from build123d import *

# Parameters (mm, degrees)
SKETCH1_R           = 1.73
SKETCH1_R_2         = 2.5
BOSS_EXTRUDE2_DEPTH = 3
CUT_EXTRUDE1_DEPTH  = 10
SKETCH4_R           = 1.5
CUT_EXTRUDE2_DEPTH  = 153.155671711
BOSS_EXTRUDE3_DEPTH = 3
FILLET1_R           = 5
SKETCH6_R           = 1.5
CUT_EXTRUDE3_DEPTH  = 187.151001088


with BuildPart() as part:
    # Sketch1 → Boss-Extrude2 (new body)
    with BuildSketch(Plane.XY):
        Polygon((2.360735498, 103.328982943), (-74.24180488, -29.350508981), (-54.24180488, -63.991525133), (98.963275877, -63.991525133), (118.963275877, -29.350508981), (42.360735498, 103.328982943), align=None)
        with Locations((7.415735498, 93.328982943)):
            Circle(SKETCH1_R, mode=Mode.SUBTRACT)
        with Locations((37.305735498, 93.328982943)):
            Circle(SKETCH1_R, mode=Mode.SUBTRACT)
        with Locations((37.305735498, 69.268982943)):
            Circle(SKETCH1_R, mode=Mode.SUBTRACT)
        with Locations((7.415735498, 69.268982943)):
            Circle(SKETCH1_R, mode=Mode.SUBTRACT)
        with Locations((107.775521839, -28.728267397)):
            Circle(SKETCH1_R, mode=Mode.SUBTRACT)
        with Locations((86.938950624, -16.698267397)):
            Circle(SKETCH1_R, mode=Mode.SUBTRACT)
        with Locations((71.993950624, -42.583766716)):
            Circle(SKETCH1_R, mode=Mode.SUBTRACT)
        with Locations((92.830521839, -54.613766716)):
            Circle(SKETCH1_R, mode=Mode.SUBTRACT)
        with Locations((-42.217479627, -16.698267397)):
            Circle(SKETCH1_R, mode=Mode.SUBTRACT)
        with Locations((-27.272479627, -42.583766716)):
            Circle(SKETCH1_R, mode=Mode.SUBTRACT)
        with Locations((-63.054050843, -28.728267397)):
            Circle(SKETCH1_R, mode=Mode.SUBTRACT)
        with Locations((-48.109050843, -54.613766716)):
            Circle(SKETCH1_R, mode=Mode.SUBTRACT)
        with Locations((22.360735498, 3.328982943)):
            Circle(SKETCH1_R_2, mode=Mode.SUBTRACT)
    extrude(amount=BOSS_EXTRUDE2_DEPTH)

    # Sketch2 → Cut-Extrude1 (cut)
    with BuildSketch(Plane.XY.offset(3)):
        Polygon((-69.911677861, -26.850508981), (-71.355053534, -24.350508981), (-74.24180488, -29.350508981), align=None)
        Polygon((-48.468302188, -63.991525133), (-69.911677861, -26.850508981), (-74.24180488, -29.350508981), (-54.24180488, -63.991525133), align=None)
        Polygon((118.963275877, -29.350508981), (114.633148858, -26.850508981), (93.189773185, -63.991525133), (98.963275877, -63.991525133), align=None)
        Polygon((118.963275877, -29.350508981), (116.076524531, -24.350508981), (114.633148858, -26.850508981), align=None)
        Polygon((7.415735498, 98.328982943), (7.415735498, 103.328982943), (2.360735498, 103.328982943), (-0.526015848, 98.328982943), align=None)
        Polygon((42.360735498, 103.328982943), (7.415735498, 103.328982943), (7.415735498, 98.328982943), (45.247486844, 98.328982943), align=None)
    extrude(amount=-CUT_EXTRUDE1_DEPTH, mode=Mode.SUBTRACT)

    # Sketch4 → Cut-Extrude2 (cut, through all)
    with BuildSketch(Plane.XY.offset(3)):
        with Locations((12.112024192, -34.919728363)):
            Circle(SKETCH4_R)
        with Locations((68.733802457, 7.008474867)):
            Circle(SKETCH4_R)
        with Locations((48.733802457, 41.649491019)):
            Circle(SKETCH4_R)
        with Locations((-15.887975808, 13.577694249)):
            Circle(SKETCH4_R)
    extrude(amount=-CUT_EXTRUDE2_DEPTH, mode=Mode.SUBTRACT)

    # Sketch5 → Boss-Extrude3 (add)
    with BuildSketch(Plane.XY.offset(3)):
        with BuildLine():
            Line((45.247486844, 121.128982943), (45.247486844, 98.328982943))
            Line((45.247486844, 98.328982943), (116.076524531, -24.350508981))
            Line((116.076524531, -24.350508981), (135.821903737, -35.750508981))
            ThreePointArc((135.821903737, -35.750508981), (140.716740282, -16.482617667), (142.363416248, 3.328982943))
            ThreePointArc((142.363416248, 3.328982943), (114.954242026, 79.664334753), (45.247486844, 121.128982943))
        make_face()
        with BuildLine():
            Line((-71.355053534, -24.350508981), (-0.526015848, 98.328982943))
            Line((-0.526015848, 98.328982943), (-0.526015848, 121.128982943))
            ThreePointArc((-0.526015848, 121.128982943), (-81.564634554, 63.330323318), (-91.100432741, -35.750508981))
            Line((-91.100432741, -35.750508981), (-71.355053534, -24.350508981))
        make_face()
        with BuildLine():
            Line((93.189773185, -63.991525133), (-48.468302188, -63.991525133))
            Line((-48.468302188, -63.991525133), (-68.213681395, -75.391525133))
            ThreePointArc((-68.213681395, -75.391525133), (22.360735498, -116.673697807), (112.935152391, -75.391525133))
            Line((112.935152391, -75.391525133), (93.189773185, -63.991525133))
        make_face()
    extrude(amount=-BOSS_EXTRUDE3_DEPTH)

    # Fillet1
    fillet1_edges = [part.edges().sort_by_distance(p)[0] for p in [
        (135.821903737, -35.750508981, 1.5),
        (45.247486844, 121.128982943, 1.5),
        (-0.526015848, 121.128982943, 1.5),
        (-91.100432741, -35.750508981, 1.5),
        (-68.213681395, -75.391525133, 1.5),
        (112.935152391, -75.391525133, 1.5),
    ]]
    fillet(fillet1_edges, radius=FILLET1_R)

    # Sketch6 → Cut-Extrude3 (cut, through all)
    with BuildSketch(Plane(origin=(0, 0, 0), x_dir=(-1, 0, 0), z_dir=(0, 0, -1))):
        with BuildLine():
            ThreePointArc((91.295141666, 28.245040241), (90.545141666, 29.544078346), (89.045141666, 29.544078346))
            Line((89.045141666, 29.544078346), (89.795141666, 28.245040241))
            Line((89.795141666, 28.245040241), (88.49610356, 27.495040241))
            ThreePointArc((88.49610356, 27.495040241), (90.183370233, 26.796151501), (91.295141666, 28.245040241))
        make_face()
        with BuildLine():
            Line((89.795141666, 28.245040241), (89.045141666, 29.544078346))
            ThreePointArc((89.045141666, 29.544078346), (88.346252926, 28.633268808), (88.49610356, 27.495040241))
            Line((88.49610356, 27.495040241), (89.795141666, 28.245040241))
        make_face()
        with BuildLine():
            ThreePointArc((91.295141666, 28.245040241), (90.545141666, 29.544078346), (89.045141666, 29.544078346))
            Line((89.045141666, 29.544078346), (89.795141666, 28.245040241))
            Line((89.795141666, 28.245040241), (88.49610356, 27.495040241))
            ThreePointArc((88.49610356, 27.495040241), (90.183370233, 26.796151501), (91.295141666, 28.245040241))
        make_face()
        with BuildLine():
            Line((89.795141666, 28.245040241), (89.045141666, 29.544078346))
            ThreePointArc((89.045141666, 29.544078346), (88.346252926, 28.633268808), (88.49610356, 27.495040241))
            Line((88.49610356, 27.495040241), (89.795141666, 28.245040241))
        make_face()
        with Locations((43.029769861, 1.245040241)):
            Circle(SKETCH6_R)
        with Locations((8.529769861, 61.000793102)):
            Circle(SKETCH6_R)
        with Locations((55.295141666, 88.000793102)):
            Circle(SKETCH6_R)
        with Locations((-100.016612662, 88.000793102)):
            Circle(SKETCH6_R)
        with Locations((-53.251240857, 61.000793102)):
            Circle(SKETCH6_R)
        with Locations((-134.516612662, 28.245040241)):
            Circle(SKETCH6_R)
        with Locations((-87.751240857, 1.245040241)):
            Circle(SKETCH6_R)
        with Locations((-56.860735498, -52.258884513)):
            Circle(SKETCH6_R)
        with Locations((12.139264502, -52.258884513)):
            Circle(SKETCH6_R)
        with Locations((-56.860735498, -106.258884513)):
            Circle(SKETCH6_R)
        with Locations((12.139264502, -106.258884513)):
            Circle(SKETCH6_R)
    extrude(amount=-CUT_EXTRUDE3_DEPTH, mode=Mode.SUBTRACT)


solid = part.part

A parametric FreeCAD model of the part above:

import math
import FreeCAD as App
import Part
import Sketcher
Q = App.Units.Quantity


def edges_at(feature, points):
    """Names of the edges that pass closest to the given points."""
    edges = feature.Shape.Edges
    near = lambda p: min(range(len(edges)), key=lambda i: edges[i].distToShape(Part.Vertex(*p))[0])
    return sorted({f"Edge{near(p) + 1}" for p in points})


def add_polygon(sketch, points):
    """Adds a closed chain of lines whose ends are joined by coincident constraints."""
    first, n = sketch.GeometryCount, len(points)
    for a, b in zip(points, points[1:] + points[:1]):
        sketch.addGeometry(Part.LineSegment(App.Vector(*a, 0), App.Vector(*b, 0)), False)
    for i in range(n):
        sketch.addConstraint(Sketcher.Constraint("Coincident", first + i, 2, first + (i + 1) % n, 1))

doc = App.newDocument("Part")
body = doc.addObject("PartDesign::Body", "Body")

# Sketch on XY plane
sketch1 = body.newObject("Sketcher::SketchObject", "Sketch")
sketch1.AttachmentSupport = (doc.getObject("XY_Plane"), [""])
sketch1.MapMode = "FlatFace"
add_polygon(sketch1, [(2.4, 103.3), (-74.2, -29.4), (-54.2, -64), (99, -64), (119, -29.4), (42.4, 103.3)])  # lines 0-5
sketch1.addGeometry(Part.Circle(App.Vector(-48.1, -54.6, 0), App.Vector(0, 0, 1), 1.7), False)  # 6
sketch1.addGeometry(Part.Circle(App.Vector(-27.3, -42.6, 0), App.Vector(0, 0, 1), 1.7), False)  # 7
sketch1.addGeometry(Part.Circle(App.Vector(-63.1, -28.7, 0), App.Vector(0, 0, 1), 1.7), False)  # 8
sketch1.addGeometry(Part.Circle(App.Vector(-42.2, -16.7, 0), App.Vector(0, 0, 1), 1.7), False)  # 9
sketch1.addGeometry(Part.Circle(App.Vector(22.4, 3.3, 0), App.Vector(0, 0, 1), 2.5), False)  # 10
sketch1.addGeometry(Part.Circle(App.Vector(72, -42.6, 0), App.Vector(0, 0, 1), 1.7), False)  # 11
sketch1.addGeometry(Part.Circle(App.Vector(92.8, -54.6, 0), App.Vector(0, 0, 1), 1.7), False)  # 12
sketch1.addGeometry(Part.Circle(App.Vector(107.8, -28.7, 0), App.Vector(0, 0, 1), 1.7), False)  # 13
sketch1.addGeometry(Part.Circle(App.Vector(86.9, -16.7, 0), App.Vector(0, 0, 1), 1.7), False)  # 14
sketch1.addGeometry(Part.Circle(App.Vector(7.4, 69.3, 0), App.Vector(0, 0, 1), 1.7), False)  # 15
sketch1.addGeometry(Part.Circle(App.Vector(7.4, 93.3, 0), App.Vector(0, 0, 1), 1.7), False)  # 16
sketch1.addGeometry(Part.Circle(App.Vector(37.3, 69.3, 0), App.Vector(0, 0, 1), 1.7), False)  # 17
sketch1.addGeometry(Part.Circle(App.Vector(37.3, 93.3, 0), App.Vector(0, 0, 1), 1.7), False)  # 18
sketch1.addConstraint([
    Sketcher.Constraint("Horizontal", 2),
    Sketcher.Constraint("Horizontal", 5),
    Sketcher.Constraint("Equal", 6, 7),
    Sketcher.Constraint("Equal", 7, 8),
    Sketcher.Constraint("Equal", 8, 9),
    Sketcher.Constraint("Equal", 9, 11),
    Sketcher.Constraint("Equal", 11, 12),
    Sketcher.Constraint("Equal", 12, 13),
    Sketcher.Constraint("Equal", 13, 14),
    Sketcher.Constraint("Equal", 14, 15),
    Sketcher.Constraint("Equal", 15, 16),
    Sketcher.Constraint("Equal", 16, 17),
    Sketcher.Constraint("Equal", 17, 18),
    Sketcher.Constraint("Parallel", 0, 3),
    Sketcher.Constraint("Parallel", 1, 4),
    Sketcher.Constraint("Horizontal", 7, 3, 11, 3),
    Sketcher.Constraint("Horizontal", 6, 3, 12, 3),
    Sketcher.Constraint("Horizontal", 8, 3, 13, 3),
    Sketcher.Constraint("Horizontal", 9, 3, 14, 3),
    Sketcher.Constraint("Horizontal", 15, 3, 17, 3),
    Sketcher.Constraint("Horizontal", 16, 3, 18, 3),
    Sketcher.Constraint("Horizontal", 0, 2, 3, 2),
    Sketcher.Constraint("Vertical", 15, 3, 16, 3),
    Sketcher.Constraint("Vertical", 17, 3, 18, 3),
    Sketcher.Constraint("Equal", 1, 3),
    Sketcher.Constraint("Diameter", 10, 5.0),
    Sketcher.Constraint("Diameter", 6, 3.46),
    Sketcher.Constraint("DistanceX", 5, 2, 5, 1, 40.0),
    Sketcher.Constraint("Angle", 0, Q("-120 deg")),
    Sketcher.Constraint("Distance", 1, 40.0),
    Sketcher.Constraint("DistanceY", 10, 3, 16, 3, 90.0),
    Sketcher.Constraint("DistanceY", 18, 3, 4, 2, 10.0),
    Sketcher.Constraint("DistanceX", 10, 3, 4, 2, 20.0),
    Sketcher.Constraint("DistanceY", 6, 3, 7, 3, 12.03),
    Sketcher.Constraint("DistanceY", 8, 3, 9, 3, 12.03),
    Sketcher.Constraint("DistanceY", 10, 3, 15, 3, 65.94),
    Sketcher.Constraint("DistanceX", 15, 3, 17, 3, 29.89),
    Sketcher.Constraint("DistanceX", 8, 3, 6, 3, 14.945),
    Sketcher.Constraint("DistanceX", 9, 3, 7, 3, 14.945),
    Sketcher.Constraint("DistanceX", 6, 3, 11, 3, 120.103001),
    Sketcher.Constraint("DistanceX", 7, 3, 12, 3, 120.103001),
    Sketcher.Constraint("DistanceX", 12, 3, 13, 3, 14.945),
    Sketcher.Constraint("DistanceX", 11, 3, 14, 3, 14.945),
    Sketcher.Constraint("DistanceX", 15, 3, 10, 3, 14.945),
    Sketcher.Constraint("DistanceX", 2, 1, 2, 2, 153.205081),
    Sketcher.Constraint("DistanceY", 6, 3, 8, 3, 25.885499),
    Sketcher.Constraint("DistanceX", 6, 3, -1, 1, 48.109051),
    Sketcher.Constraint("DistanceX", 7, 3, -1, 1, 27.27248),
    Sketcher.Constraint("DistanceY", 0, 2, -1, 1, 29.350509),
    Sketcher.Constraint("DistanceY", 7, 3, 10, 3, 45.91275),
    Sketcher.Constraint("DistanceX", -1, 1, 10, 3, 22.360735),
])
pad1 = body.newObject("PartDesign::Pad", "Pad")
pad1.Profile = sketch1
pad1.Length = 3

# Sketch on XY plane
sketch2 = body.newObject("Sketcher::SketchObject", "Sketch001")
sketch2.AttachmentSupport = (doc.getObject("XY_Plane"), [""])
sketch2.MapMode = "FlatFace"
sketch2.AttachmentOffset = App.Placement(App.Vector(0, 0, 3), App.Rotation())
add_polygon(sketch2, [(-69.9, -26.9), (-71.4, -24.4), (-74.2, -29.4), (-54.2, -64), (-48.5, -64)])  # lines 0-4
add_polygon(sketch2, [(114.6, -26.9), (93.2, -64), (99, -64), (119, -29.4), (116.1, -24.4)])  # lines 5-9
add_polygon(sketch2, [(2.4, 103.3), (-0.5, 98.3), (45.2, 98.3), (42.4, 103.3)])  # lines 10-13
sketch2.addConstraint([
    Sketcher.Constraint("Horizontal", 3),
    Sketcher.Constraint("Horizontal", 6),
    Sketcher.Constraint("Horizontal", 11),
    Sketcher.Constraint("Horizontal", 13),
    Sketcher.Constraint("Parallel", 0, 2),
    Sketcher.Constraint("Parallel", 2, 4),
    Sketcher.Constraint("Parallel", 1, 5),
    Sketcher.Constraint("Parallel", 5, 7),
    Sketcher.Constraint("Parallel", 4, 8),
    Sketcher.Constraint("Parallel", 7, 9),
    Sketcher.Constraint("Parallel", 9, 10),
    Sketcher.Constraint("Parallel", 8, 12),
    Sketcher.Constraint("Horizontal", 3, 2, 5, 2),
    Sketcher.Constraint("Horizontal", 1, 2, 7, 2),
    Sketcher.Constraint("Horizontal", 0, 2, 8, 2),
    Sketcher.Constraint("Horizontal", 4, 2, 9, 2),
    Sketcher.Constraint("Equal", 4, 5),
    Sketcher.Constraint("Equal", 8, 10),
    Sketcher.Constraint("DistanceX", 13, 2, 13, 1, 40.0),
    Sketcher.Constraint("Angle", 0, Q("120 deg")),
    Sketcher.Constraint("Distance", 2, 40.0),
    Sketcher.Constraint("DistanceY", 1, 2, 0, 2, 5.0),
    Sketcher.Constraint("DistanceY", 4, 2, 0, 2, 2.5),
    Sketcher.Constraint("DistanceY", 0, 2, -1, 1, 24.350509),
    Sketcher.Constraint("DistanceX", -1, 1, 9, 2, 114.633149),
    Sketcher.Constraint("DistanceX", 2, 2, 5, 2, 147.431578),
    Sketcher.Constraint("DistanceY", 0, 2, 10, 2, 122.679492),
    Sketcher.Constraint("DistanceX", 1, 2, 10, 2, 73.715789),
])
pocket1 = body.newObject("PartDesign::Pocket", "Pocket")
pocket1.Profile = sketch2
pocket1.Length = 10

# Sketch on XY plane
sketch3 = body.newObject("Sketcher::SketchObject", "Sketch002")
sketch3.AttachmentSupport = (doc.getObject("XY_Plane"), [""])
sketch3.MapMode = "FlatFace"
sketch3.AttachmentOffset = App.Placement(App.Vector(0, 0, 3), App.Rotation())
sketch3.addGeometry([
    Part.Circle(App.Vector(12.1, -34.9, 0), App.Vector(0, 0, 1), 1.5),
    Part.Circle(App.Vector(68.7, 7, 0), App.Vector(0, 0, 1), 1.5),
    Part.Circle(App.Vector(48.7, 41.6, 0), App.Vector(0, 0, 1), 1.5),
    Part.Circle(App.Vector(-15.9, 13.6, 0), App.Vector(0, 0, 1), 1.5),
], False)
sketch3.addConstraint([
    Sketcher.Constraint("Equal", 0, 1),
    Sketcher.Constraint("Equal", 1, 2),
    Sketcher.Constraint("Equal", 2, 3),
    Sketcher.Constraint("Diameter", 0, 3.0),
    Sketcher.Constraint("DistanceX", 2, 3, 1, 3, 20.0),
    Sketcher.Constraint("DistanceX", 3, 3, 0, 3, 28.0),
    Sketcher.Constraint("DistanceY", 0, 3, -1, 1, 34.919728),
    Sketcher.Constraint("DistanceY", -1, 1, 2, 3, 41.649491),
    Sketcher.Constraint("DistanceX", 0, 3, 1, 3, 56.621778),
    Sketcher.Constraint("DistanceY", 1, 3, 3, 3, 6.569219),
    Sketcher.Constraint("DistanceX", -1, 1, 0, 3, 12.112024),
    Sketcher.Constraint("DistanceY", -1, 1, 1, 3, 7.008475),
])
pocket2 = body.newObject("PartDesign::Pocket", "Pocket001")
pocket2.Profile = sketch3
pocket2.Type = "ThroughAll"

# Sketch on XY plane
sketch4 = body.newObject("Sketcher::SketchObject", "Sketch003")
sketch4.AttachmentSupport = (doc.getObject("XY_Plane"), [""])
sketch4.MapMode = "FlatFace"
sketch4.AttachmentOffset = App.Placement(App.Vector(0, 0, 3), App.Rotation())
sketch4.addGeometry([
    Part.LineSegment(App.Vector(45, 121, 0), App.Vector(45, 98, 0)),  # 0
    Part.LineSegment(App.Vector(45, 98, 0), App.Vector(116, -24, 0)),  # 1
    Part.LineSegment(App.Vector(116, -24, 0), App.Vector(136, -36, 0)),  # 2
    Part.ArcOfCircle(Part.Circle(App.Vector(22, 3, 0), App.Vector(0, 0, 1), 120), math.radians(-19.01), math.radians(0)),  # 3
    Part.ArcOfCircle(Part.Circle(App.Vector(22, 3, 0), App.Vector(0, 0, 1), 120), math.radians(0), math.radians(79)),  # 4
    Part.LineSegment(App.Vector(-71, -24, 0), App.Vector(-1, 98, 0)),  # 5
    Part.LineSegment(App.Vector(-1, 98, 0), App.Vector(-1, 121, 0)),  # 6
    Part.ArcOfCircle(Part.Circle(App.Vector(22, 3, 0), App.Vector(0, 0, 1), 120), math.radians(101), math.radians(199)),  # 7
    Part.LineSegment(App.Vector(-91, -36, 0), App.Vector(-71, -24, 0)),  # 8
    Part.LineSegment(App.Vector(93, -64, 0), App.Vector(-48, -64, 0)),  # 9
    Part.LineSegment(App.Vector(-48, -64, 0), App.Vector(-68, -75, 0)),  # 10
    Part.ArcOfCircle(Part.Circle(App.Vector(22, 3, 0), App.Vector(0, 0, 1), 120), math.radians(-139), math.radians(-41)),  # 11
    Part.LineSegment(App.Vector(113, -75, 0), App.Vector(93, -64, 0)),  # 12
], False)
sketch4.addConstraint([
    Sketcher.Constraint("Coincident", 0, 2, 1, 1),
    Sketcher.Constraint("Coincident", 1, 2, 2, 1),
    Sketcher.Constraint("Coincident", 2, 2, 3, 1),
    Sketcher.Constraint("Tangent", 3, 2, 4, 1),
    Sketcher.Constraint("Coincident", 4, 2, 0, 1),
    Sketcher.Constraint("Coincident", 5, 2, 6, 1),
    Sketcher.Constraint("Coincident", 6, 2, 7, 1),
    Sketcher.Constraint("Coincident", 7, 2, 8, 1),
    Sketcher.Constraint("Coincident", 8, 2, 5, 1),
    Sketcher.Constraint("Coincident", 9, 2, 10, 1),
    Sketcher.Constraint("Coincident", 10, 2, 11, 1),
    Sketcher.Constraint("Coincident", 11, 2, 12, 1),
    Sketcher.Constraint("Coincident", 12, 2, 9, 1),
    Sketcher.Constraint("Vertical", 0),
    Sketcher.Constraint("Vertical", 6),
    Sketcher.Constraint("Horizontal", 9),
    Sketcher.Constraint("Coincident", 7, 3, 3, 3),
    Sketcher.Constraint("Coincident", 11, 3, 3, 3),
    Sketcher.Constraint("Equal", 3, 4),
    Sketcher.Constraint("Equal", 4, 7),
    Sketcher.Constraint("Equal", 7, 11),
    Sketcher.Constraint("Perpendicular", 2, 5),
    Sketcher.Constraint("Perpendicular", 1, 8),
    Sketcher.Constraint("Parallel", 8, 10),
    Sketcher.Constraint("Perpendicular", 5, 12),
    Sketcher.Constraint("Horizontal", 11, 3, 3, 2),
    Sketcher.Constraint("Horizontal", 0, 2, 5, 2),
    Sketcher.Constraint("Horizontal", 4, 2, 6, 2),
    Sketcher.Constraint("Horizontal", 2, 2, 7, 2),
    Sketcher.Constraint("Horizontal", 1, 2, 8, 2),
    Sketcher.Constraint("Horizontal", 10, 2, 11, 2),
    Sketcher.Constraint("Equal", 8, 10),
    Sketcher.Constraint("Angle", 1, Q("-60 deg")),
    Sketcher.Constraint("DistanceY", 0, 2, 0, 1, 22.8),
    Sketcher.Constraint("DistanceY", 11, 3, 0, 2, 95.0),
    Sketcher.Constraint("Distance", 2, 22.8),
    Sketcher.Constraint("Radius", 3, 120.002681),
    Sketcher.Constraint("DistanceX", 9, 2, 9, 1, 141.658075),
    Sketcher.Constraint("DistanceY", 1, 2, -1, 1, 24.350509),
    Sketcher.Constraint("DistanceX", 10, 2, -1, 1, 68.213681),
])
pad2 = body.newObject("PartDesign::Pad", "Pad001")
pad2.Profile = sketch4
pad2.Length = 3
pad2.Reversed = True
doc.recompute()

fillet = body.newObject("PartDesign::Fillet", "Fillet")
fillet.Base = (pad2, edges_at(pad2, [
    (135.822, -35.751, 1.5),
    (45.247, 121.129, 1.5),
    (-0.526, 121.129, 1.5),
    (-91.1, -35.751, 1.5),
    (-68.214, -75.392, 1.5),
    (112.935, -75.392, 1.5),
]))
fillet.Radius = 5

# Sketch on XY plane
sketch5 = body.newObject("Sketcher::SketchObject", "Sketch004")
sketch5.AttachmentSupport = (doc.getObject("XY_Plane"), [""])
sketch5.MapMode = "FlatFace"
sketch5.addGeometry([
    Part.ArcOfCircle(Part.Circle(App.Vector(-89.8, 28.2, 0), App.Vector(0, 0, 1), 1.5), math.radians(60), math.radians(180)),  # 0
    Part.ArcOfCircle(Part.Circle(App.Vector(-89.8, 28.2, 0), App.Vector(0, 0, 1), 1.5), math.radians(-30), math.radians(60)),  # 1
    Part.ArcOfCircle(Part.Circle(App.Vector(-89.8, 28.2, 0), App.Vector(0, 0, 1), 1.5), math.radians(180), math.radians(330)),  # 2
    Part.Circle(App.Vector(-43, 1.2, 0), App.Vector(0, 0, 1), 1.5),  # 3
    Part.Circle(App.Vector(-8.5, 61, 0), App.Vector(0, 0, 1), 1.5),  # 4
    Part.Circle(App.Vector(-55.3, 88, 0), App.Vector(0, 0, 1), 1.5),  # 5
    Part.Circle(App.Vector(100, 88, 0), App.Vector(0, 0, 1), 1.5),  # 6
    Part.Circle(App.Vector(53.3, 61, 0), App.Vector(0, 0, 1), 1.5),  # 7
    Part.Circle(App.Vector(134.5, 28.2, 0), App.Vector(0, 0, 1), 1.5),  # 8
    Part.Circle(App.Vector(87.8, 1.2, 0), App.Vector(0, 0, 1), 1.5),  # 9
    Part.Circle(App.Vector(56.9, -52.3, 0), App.Vector(0, 0, 1), 1.5),  # 10
    Part.Circle(App.Vector(-12.1, -52.3, 0), App.Vector(0, 0, 1), 1.5),  # 11
    Part.Circle(App.Vector(56.9, -106.3, 0), App.Vector(0, 0, 1), 1.5),  # 12
    Part.Circle(App.Vector(-12.1, -106.3, 0), App.Vector(0, 0, 1), 1.5),  # 13
], False)
sketch5.addConstraint([
    Sketcher.Constraint("Tangent", 0, 1, 1, 2),
    Sketcher.Constraint("Tangent", 1, 1, 2, 2),
    Sketcher.Constraint("Tangent", 2, 1, 0, 2),
    Sketcher.Constraint("Equal", 2, 3),
    Sketcher.Constraint("Equal", 3, 4),
    Sketcher.Constraint("Equal", 4, 5),
    Sketcher.Constraint("Equal", 5, 6),
    Sketcher.Constraint("Equal", 6, 7),
    Sketcher.Constraint("Equal", 7, 8),
    Sketcher.Constraint("Equal", 8, 9),
    Sketcher.Constraint("Equal", 9, 10),
    Sketcher.Constraint("Equal", 10, 11),
    Sketcher.Constraint("Equal", 11, 12),
    Sketcher.Constraint("Equal", 12, 13),
    Sketcher.Constraint("Horizontal", 5, 3, 6, 3),
    Sketcher.Constraint("Horizontal", 4, 3, 7, 3),
    Sketcher.Constraint("Horizontal", 2, 3, 8, 3),
    Sketcher.Constraint("Horizontal", 3, 3, 9, 3),
    Sketcher.Constraint("Horizontal", 10, 3, 11, 3),
    Sketcher.Constraint("Horizontal", 12, 3, 13, 3),
    Sketcher.Constraint("Horizontal", 8, 3, 2, 1),
    Sketcher.Constraint("Vertical", 10, 3, 12, 3),
    Sketcher.Constraint("Vertical", 11, 3, 13, 3),
    Sketcher.Constraint("Diameter", 3, 3.0),
    Sketcher.Constraint("DistanceY", 3, 3, 1, 3, 27.0),
    Sketcher.Constraint("DistanceY", 4, 3, 5, 3, 27.0),
    Sketcher.Constraint("DistanceX", 11, 3, 10, 3, 69.0),
    Sketcher.Constraint("DistanceY", 12, 3, 10, 3, 54.0),
    Sketcher.Constraint("DistanceX", 3, 3, 4, 3, 34.5),
    Sketcher.Constraint("DistanceX", 1, 3, 5, 3, 34.5),
    Sketcher.Constraint("DistanceX", 6, 3, 8, 3, 34.5),
    Sketcher.Constraint("DistanceX", 7, 3, 9, 3, 34.5),
    Sketcher.Constraint("DistanceX", 1, 3, 0, 1, 0.75),
    Sketcher.Constraint("DistanceY", 1, 1, 1, 3, 0.75),
    Sketcher.Constraint("DistanceX", 0, 3, -1, 1, 89.795142),
    Sketcher.Constraint("DistanceY", -1, 1, 0, 3, 28.24504),
    Sketcher.Constraint("DistanceX", 3, 3, -1, 1, 43.02977),
    Sketcher.Constraint("DistanceX", -1, 1, 7, 3, 53.251241),
    Sketcher.Constraint("DistanceX", 7, 3, 6, 3, 46.765372),
    Sketcher.Constraint("DistanceY", -1, 1, 4, 3, 61.000793),
    Sketcher.Constraint("DistanceX", -1, 1, 10, 3, 56.860735),
    Sketcher.Constraint("DistanceY", 10, 3, -1, 1, 52.258885),
])
pocket3 = body.newObject("PartDesign::Pocket", "Pocket002")
pocket3.Profile = sketch5
pocket3.Type = "ThroughAll"
pocket3.Reversed = True

doc.recompute()
